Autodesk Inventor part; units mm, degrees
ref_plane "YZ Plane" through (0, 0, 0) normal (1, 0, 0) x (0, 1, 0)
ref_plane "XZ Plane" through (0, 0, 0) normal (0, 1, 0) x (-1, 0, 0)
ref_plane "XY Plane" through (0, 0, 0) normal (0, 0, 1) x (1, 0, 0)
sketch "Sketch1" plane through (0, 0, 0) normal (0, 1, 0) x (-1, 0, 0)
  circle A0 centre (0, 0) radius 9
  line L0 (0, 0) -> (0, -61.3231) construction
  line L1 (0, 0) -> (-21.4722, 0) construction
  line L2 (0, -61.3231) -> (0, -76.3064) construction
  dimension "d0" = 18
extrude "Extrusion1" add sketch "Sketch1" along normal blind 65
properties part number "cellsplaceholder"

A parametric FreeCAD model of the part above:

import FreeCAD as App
import Part
import Sketcher

V = App.Vector
Q = App.Units.Quantity

doc = App.newDocument("Part")
body = doc.addObject("PartDesign::Body", "Body")

# Sketch on XZ plane
sketch1 = body.newObject("Sketcher::SketchObject", "Sketch")
sketch1.AttachmentSupport = (doc.getObject("XZ_Plane"), [""])
sketch1.MapMode = "FlatFace"
sketch1.addGeometry(Part.Circle(V(0, 0, 0), V(0, 0, 1), 9), False)
sketch1.addConstraint([
    Sketcher.Constraint("Coincident", 0, 3, -1, 1),
    Sketcher.Constraint("Diameter", 0, Q("18 mm")),
])
pad1 = body.newObject("PartDesign::Pad", "Pad")
pad1.Profile = sketch1
pad1.Length = 65
pad1.Reversed = True

doc.recompute()
